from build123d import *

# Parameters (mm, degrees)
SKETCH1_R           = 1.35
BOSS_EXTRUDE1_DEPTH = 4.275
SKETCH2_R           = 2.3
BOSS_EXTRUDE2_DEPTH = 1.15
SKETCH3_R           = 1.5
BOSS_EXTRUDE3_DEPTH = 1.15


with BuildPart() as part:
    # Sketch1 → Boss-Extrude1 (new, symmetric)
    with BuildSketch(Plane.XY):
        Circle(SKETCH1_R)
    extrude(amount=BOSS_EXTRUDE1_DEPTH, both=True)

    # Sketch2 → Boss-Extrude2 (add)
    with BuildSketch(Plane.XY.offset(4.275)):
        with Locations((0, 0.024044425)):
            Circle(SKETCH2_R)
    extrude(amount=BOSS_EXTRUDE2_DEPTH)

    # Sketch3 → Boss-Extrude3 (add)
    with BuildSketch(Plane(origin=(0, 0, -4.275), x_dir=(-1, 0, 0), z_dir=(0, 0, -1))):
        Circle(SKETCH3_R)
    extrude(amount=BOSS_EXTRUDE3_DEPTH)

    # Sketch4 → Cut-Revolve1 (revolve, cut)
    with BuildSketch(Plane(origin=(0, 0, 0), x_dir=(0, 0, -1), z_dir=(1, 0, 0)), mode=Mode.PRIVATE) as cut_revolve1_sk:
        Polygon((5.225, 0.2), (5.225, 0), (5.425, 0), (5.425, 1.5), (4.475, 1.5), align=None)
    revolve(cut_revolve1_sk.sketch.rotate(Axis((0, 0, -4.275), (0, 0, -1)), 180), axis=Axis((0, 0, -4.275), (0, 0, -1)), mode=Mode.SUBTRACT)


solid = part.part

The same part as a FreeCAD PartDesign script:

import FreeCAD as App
import Part
import Sketcher
from FreeCAD import Vector
Q = App.Units.Quantity

doc = App.newDocument("Part")
params = doc.addObject("Spreadsheet::Sheet", "Params")
for row, (alias, value) in enumerate([
    ("sketch1_diameter", "2.7 mm"),
    ("pad1_length", "8.55 mm"),
    ("sketch2_diameter", "4.6 mm"),
    ("pad2_length", "1.15 mm"),
    ("sketch3_diameter", "3 mm"),
    ("pad3_length", "1.15 mm"),
    ("sketch4_width", "0.2 mm"),
    ("sketch4_width2", "1.5 mm"),
    ("sketch4_height", "0.95 mm"),
    ("groove_angle", "360 deg"),
], start=1):
    params.set(f"A{row}", alias)
    params.set(f"B{row}", "=" + value)
    params.setAlias(f"B{row}", alias)

body = doc.addObject("PartDesign::Body", "Body")

# Sketch on XY plane
sketch1 = doc.addObject("Sketcher::SketchObject", "Sketch")
body.addObject(sketch1)
sketch1.AttachmentSupport = (doc.XY_Plane, [""])
sketch1.MapMode = "FlatFace"
sketch1.addGeometry(Part.Circle(Vector(0, 0, 0), Vector(0, 0, 1), 1.4), False)
sketch1.addConstraint(Sketcher.Constraint("Coincident", 0, 3, -1, 1))
sketch1.addConstraint(Sketcher.Constraint("Diameter", 0, Q("2.7 mm")))
sketch1.setExpression("Constraints[1]", "Params.sketch1_diameter")
pad1 = doc.addObject("PartDesign::Pad", "Pad")
body.addObject(pad1)
pad1.Profile = sketch1
pad1.setExpression("Length", "Params.pad1_length")
pad1.Midplane = True

# Sketch on XY plane
sketch2 = doc.addObject("Sketcher::SketchObject", "Sketch001")
body.addObject(sketch2)
sketch2.AttachmentSupport = (doc.XY_Plane, [""])
sketch2.MapMode = "FlatFace"
sketch2.AttachmentOffset = App.Placement(Vector(0, 0, 4.275), App.Rotation())
sketch2.addGeometry(Part.Circle(Vector(0, 0, 0), Vector(0, 0, 1), 2.3), False)
sketch2.addConstraint(Sketcher.Constraint("PointOnObject", 0, 3, -2))
sketch2.addConstraint(Sketcher.Constraint("Diameter", 0, Q("4.6 mm")))
sketch2.addConstraint(Sketcher.Constraint("DistanceY", -1, 1, 0, 3, Q("0.024044 mm")))
sketch2.setExpression("Constraints[1]", "Params.sketch2_diameter")
pad2 = doc.addObject("PartDesign::Pad", "Pad001")
body.addObject(pad2)
pad2.Profile = sketch2
pad2.setExpression("Length", "Params.pad2_length")

# Sketch on XY plane
sketch3 = doc.addObject("Sketcher::SketchObject", "Sketch002")
body.addObject(sketch3)
sketch3.AttachmentSupport = (doc.XY_Plane, [""])
sketch3.MapMode = "FlatFace"
sketch3.AttachmentOffset = App.Placement(Vector(0, 0, -4.275), App.Rotation())
sketch3.addGeometry(Part.Circle(Vector(0, 0, 0), Vector(0, 0, 1), 1.5), False)
sketch3.addConstraint(Sketcher.Constraint("Coincident", 0, 3, -1, 1))
sketch3.addConstraint(Sketcher.Constraint("Diameter", 0, Q("3 mm")))
sketch3.setExpression("Constraints[1]", "Params.sketch3_diameter")
pad3 = doc.addObject("PartDesign::Pad", "Pad002")
body.addObject(pad3)
pad3.Profile = sketch3
pad3.setExpression("Length", "Params.pad3_length")
pad3.Reversed = True

# Sketch on YZ plane
sketch4 = doc.addObject("Sketcher::SketchObject", "Sketch003")
body.addObject(sketch4)
sketch4.AttachmentSupport = (doc.YZ_Plane, [""])
sketch4.MapMode = "FlatFace"
sketch4.addGeometry(Part.LineSegment(Vector(0.2, -5.22, 0), Vector(0, -5.22, 0)), False)
sketch4.addGeometry(Part.LineSegment(Vector(0, -5.22, 0), Vector(0, -5.42, 0)), False)
sketch4.addGeometry(Part.LineSegment(Vector(0, -5.42, 0), Vector(1.5, -5.42, 0)), False)
sketch4.addGeometry(Part.LineSegment(Vector(1.5, -5.42, 0), Vector(1.5, -4.47, 0)), False)
sketch4.addGeometry(Part.LineSegment(Vector(1.5, -4.47, 0), Vector(0.2, -5.22, 0)), False)
sketch4.addConstraint(Sketcher.Constraint("Coincident", 0, 2, 1, 1))
sketch4.addConstraint(Sketcher.Constraint("Coincident", 1, 2, 2, 1))
sketch4.addConstraint(Sketcher.Constraint("Coincident", 2, 2, 3, 1))
sketch4.addConstraint(Sketcher.Constraint("Coincident", 3, 2, 4, 1))
sketch4.addConstraint(Sketcher.Constraint("Coincident", 4, 2, 0, 1))
sketch4.addConstraint(Sketcher.Constraint("Horizontal", 0))
sketch4.addConstraint(Sketcher.Constraint("Vertical", 1))
sketch4.addConstraint(Sketcher.Constraint("Horizontal", 2))
sketch4.addConstraint(Sketcher.Constraint("Vertical", 3))
sketch4.addConstraint(Sketcher.Constraint("PointOnObject", 0, 2, -2))
sketch4.addConstraint(Sketcher.Constraint("Equal", 0, 1))
sketch4.addConstraint(Sketcher.Constraint("DistanceX", 0, 2, 0, 1, Q("0.2 mm")))
sketch4.addConstraint(Sketcher.Constraint("DistanceX", 2, 1, 2, 2, Q("1.5 mm")))
sketch4.addConstraint(Sketcher.Constraint("DistanceY", 3, 1, 3, 2, Q("0.95 mm")))
sketch4.addConstraint(Sketcher.Constraint("DistanceY", 0, 2, -1, 1, Q("5.225 mm")))
sketch4.setExpression("Constraints[11]", "Params.sketch4_width")
sketch4.setExpression("Constraints[12]", "Params.sketch4_width2")
sketch4.setExpression("Constraints[13]", "Params.sketch4_height")
groove = doc.addObject("PartDesign::Groove", "Groove")
body.addObject(groove)
groove.Profile = sketch4
groove.ReferenceAxis = (sketch4, ["V_Axis"])
groove.setExpression("Angle", "Params.groove_angle")

doc.recompute()
